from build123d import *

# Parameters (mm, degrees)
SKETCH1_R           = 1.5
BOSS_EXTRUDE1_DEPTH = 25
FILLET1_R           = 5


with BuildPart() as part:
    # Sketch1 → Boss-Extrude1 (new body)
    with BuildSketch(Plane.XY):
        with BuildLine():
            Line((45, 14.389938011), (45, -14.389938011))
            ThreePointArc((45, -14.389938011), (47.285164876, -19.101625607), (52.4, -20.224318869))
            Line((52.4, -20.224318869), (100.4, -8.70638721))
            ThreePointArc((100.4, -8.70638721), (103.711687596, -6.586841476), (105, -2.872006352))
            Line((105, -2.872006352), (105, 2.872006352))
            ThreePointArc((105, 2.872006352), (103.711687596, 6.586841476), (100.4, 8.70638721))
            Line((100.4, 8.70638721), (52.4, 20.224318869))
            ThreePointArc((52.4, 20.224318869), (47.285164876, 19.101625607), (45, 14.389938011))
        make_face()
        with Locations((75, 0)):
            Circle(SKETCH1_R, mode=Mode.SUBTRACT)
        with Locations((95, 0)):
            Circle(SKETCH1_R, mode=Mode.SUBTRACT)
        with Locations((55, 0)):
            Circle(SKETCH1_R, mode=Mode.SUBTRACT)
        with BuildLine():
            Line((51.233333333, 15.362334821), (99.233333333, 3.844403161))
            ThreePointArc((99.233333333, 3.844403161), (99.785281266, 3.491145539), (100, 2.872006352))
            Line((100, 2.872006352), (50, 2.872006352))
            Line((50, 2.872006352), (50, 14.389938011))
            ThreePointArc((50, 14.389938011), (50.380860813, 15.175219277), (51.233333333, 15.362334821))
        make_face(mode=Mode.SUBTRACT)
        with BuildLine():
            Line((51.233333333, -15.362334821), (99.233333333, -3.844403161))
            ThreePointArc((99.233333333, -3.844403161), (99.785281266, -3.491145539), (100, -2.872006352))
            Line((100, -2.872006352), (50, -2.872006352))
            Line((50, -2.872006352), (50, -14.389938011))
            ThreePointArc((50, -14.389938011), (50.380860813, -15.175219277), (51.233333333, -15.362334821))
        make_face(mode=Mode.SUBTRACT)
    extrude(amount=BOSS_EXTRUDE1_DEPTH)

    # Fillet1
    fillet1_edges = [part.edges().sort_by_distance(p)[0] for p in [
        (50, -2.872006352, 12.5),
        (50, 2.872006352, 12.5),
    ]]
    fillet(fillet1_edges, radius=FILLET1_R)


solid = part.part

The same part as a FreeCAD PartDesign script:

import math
import FreeCAD as App
import Part
import Sketcher
from FreeCAD import Vector


def edges_at(feature, points):
    """Names of the edges that pass closest to the given points."""
    edges = feature.Shape.Edges
    near = lambda p: min(range(len(edges)), key=lambda i: edges[i].distToShape(Part.Vertex(*p))[0])
    return sorted({f"Edge{near(p) + 1}" for p in points})

doc = App.newDocument("Part")
body = doc.addObject("PartDesign::Body", "Body")

sketch1 = body.newObject("Sketcher::SketchObject", "Sketch")
sketch1.AttachmentSupport = (doc.getObject("XY_Plane"), [""])
sketch1.MapMode = "FlatFace"
sketch1.addGeometry([
    Part.LineSegment(Vector(45, 14.389938, 0), Vector(45, -14.389938, 0)),
    Part.ArcOfCircle(Part.Circle(Vector(51, -14.389938, 0), Vector(0, 0, 1), 6), math.radians(180), math.radians(283.493399)),
    Part.LineSegment(Vector(52.4, -20.224319, 0), Vector(100.4, -8.706387, 0)),
    Part.ArcOfCircle(Part.Circle(Vector(99, -2.872006, 0), Vector(0, 0, 1), 6), math.radians(-76.506601), math.radians(0)),
    Part.LineSegment(Vector(105, -2.872006, 0), Vector(105, 2.872006, 0)),
    Part.ArcOfCircle(Part.Circle(Vector(99, 2.872006, 0), Vector(0, 0, 1), 6), math.radians(0), math.radians(76.506601)),
    Part.LineSegment(Vector(100.4, 8.706387, 0), Vector(52.4, 20.224319, 0)),
    Part.ArcOfCircle(Part.Circle(Vector(51, 14.389938, 0), Vector(0, 0, 1), 6), math.radians(76.506601), math.radians(180)),
    Part.LineSegment(Vector(99.233333, -3.844403, 0), Vector(51.233333, -15.362335, 0)),
    Part.ArcOfCircle(Part.Circle(Vector(51, -14.389938, 0), Vector(0, 0, 1), 1), math.radians(-180), math.radians(-76.506601)),
    Part.LineSegment(Vector(50, -14.389938, 0), Vector(50, -2.872006, 0)),
    Part.LineSegment(Vector(50, -2.872006, 0), Vector(100, -2.872006, 0)),
    Part.ArcOfCircle(Part.Circle(Vector(99, -2.872006, 0), Vector(0, 0, 1), 1), math.radians(-76.506601), math.radians(0)),
    Part.Circle(Vector(55, 0, 0), Vector(0, 0, 1), 1.5),
    Part.Circle(Vector(75, 0, 0), Vector(0, 0, 1), 1.5),
    Part.Circle(Vector(95, 0, 0), Vector(0, 0, 1), 1.5),
    Part.ArcOfCircle(Part.Circle(Vector(51, 14.389938, 0), Vector(0, 0, 1), 1), math.radians(76.506601), math.radians(180)),
    Part.LineSegment(Vector(51.233333, 15.362335, 0), Vector(99.233333, 3.844403, 0)),
    Part.ArcOfCircle(Part.Circle(Vector(99, 2.872006, 0), Vector(0, 0, 1), 1), math.radians(0), math.radians(76.506601)),
    Part.LineSegment(Vector(100, 2.872006, 0), Vector(50, 2.872006, 0)),
    Part.LineSegment(Vector(50, 2.872006, 0), Vector(50, 14.389938, 0)),
], False)
sketch1.addConstraint([
    Sketcher.Constraint("Tangent", 0, 2, 1, 1),
    Sketcher.Constraint("Tangent", 1, 2, 2, 1),
    Sketcher.Constraint("Tangent", 2, 2, 3, 1),
    Sketcher.Constraint("Tangent", 3, 2, 4, 1),
    Sketcher.Constraint("Tangent", 4, 2, 5, 1),
    Sketcher.Constraint("Tangent", 5, 2, 6, 1),
    Sketcher.Constraint("Tangent", 6, 2, 7, 1),
    Sketcher.Constraint("Tangent", 7, 2, 0, 1),
    Sketcher.Constraint("Tangent", 8, 2, 9, 2),
    Sketcher.Constraint("Tangent", 9, 1, 10, 1),
    Sketcher.Constraint("Coincident", 10, 2, 11, 1),
    Sketcher.Constraint("Coincident", 11, 2, 12, 2),
    Sketcher.Constraint("Tangent", 12, 1, 8, 1),
    Sketcher.Constraint("Tangent", 16, 1, 17, 1),
    Sketcher.Constraint("Tangent", 17, 2, 18, 2),
    Sketcher.Constraint("Coincident", 18, 1, 19, 1),
    Sketcher.Constraint("Coincident", 19, 2, 20, 1),
    Sketcher.Constraint("Tangent", 20, 2, 16, 2),
    Sketcher.Constraint("Vertical", 0),
    Sketcher.Constraint("Vertical", 4),
    Sketcher.Constraint("Vertical", 10),
    Sketcher.Constraint("Horizontal", 11),
    Sketcher.Constraint("Horizontal", 19),
    Sketcher.Constraint("Vertical", 20),
    Sketcher.Constraint("Coincident", 9, 3, 1, 3),
    Sketcher.Constraint("Coincident", 12, 3, 3, 3),
    Sketcher.Constraint("Coincident", 16, 3, 7, 3),
    Sketcher.Constraint("Coincident", 18, 3, 5, 3),
    Sketcher.Constraint("Equal", 1, 3),
    Sketcher.Constraint("Equal", 3, 5),
    Sketcher.Constraint("Equal", 5, 7),
    Sketcher.Constraint("Equal", 9, 12),
    Sketcher.Constraint("Equal", 13, 14),
    Sketcher.Constraint("Equal", 14, 15),
    Sketcher.Constraint("Equal", 12, 16),
    Sketcher.Constraint("Equal", 16, 18),
    Sketcher.Constraint("Symmetric", 2, 2, 5, 2, -1),
    Sketcher.Constraint("PointOnObject", 13, 3, -1),
    Sketcher.Constraint("PointOnObject", 14, 3, -1),
    Sketcher.Constraint("PointOnObject", 15, 3, -1),
    Sketcher.Constraint("Horizontal", 3, 2, 10, 2),
    Sketcher.Constraint("Horizontal", 4, 2, 18, 1),
    Sketcher.Constraint("Diameter", 13, 3.0),
    Sketcher.Constraint("Radius", 1, 6.0),
    Sketcher.Constraint("Radius", 9, 1.0),
    Sketcher.Constraint("DistanceX", 11, 1, 11, 2, 50.0),
    Sketcher.Constraint("DistanceX", -1, 1, 1, 3, 51.0),
    Sketcher.Constraint("DistanceX", -1, 1, 13, 3, 55.0),
    Sketcher.Constraint("DistanceX", -1, 1, 14, 3, 75.0),
    Sketcher.Constraint("DistanceX", -1, 1, 15, 3, 95.0),
    Sketcher.Constraint("DistanceX", -1, 1, 1, 2, 52.4),
    Sketcher.Constraint("DistanceY", 0, 2, 0, 1, 28.779876),
])
pad1 = body.newObject("PartDesign::Pad", "Pad")
pad1.Profile = sketch1
pad1.Length = 25
doc.recompute()

fillet = body.newObject("PartDesign::Fillet", "Fillet")
fillet.Base = (pad1, edges_at(pad1, [(50, -2.872, 12.5), (50, 2.872, 12.5)]))
fillet.Radius = 5

doc.recompute()
